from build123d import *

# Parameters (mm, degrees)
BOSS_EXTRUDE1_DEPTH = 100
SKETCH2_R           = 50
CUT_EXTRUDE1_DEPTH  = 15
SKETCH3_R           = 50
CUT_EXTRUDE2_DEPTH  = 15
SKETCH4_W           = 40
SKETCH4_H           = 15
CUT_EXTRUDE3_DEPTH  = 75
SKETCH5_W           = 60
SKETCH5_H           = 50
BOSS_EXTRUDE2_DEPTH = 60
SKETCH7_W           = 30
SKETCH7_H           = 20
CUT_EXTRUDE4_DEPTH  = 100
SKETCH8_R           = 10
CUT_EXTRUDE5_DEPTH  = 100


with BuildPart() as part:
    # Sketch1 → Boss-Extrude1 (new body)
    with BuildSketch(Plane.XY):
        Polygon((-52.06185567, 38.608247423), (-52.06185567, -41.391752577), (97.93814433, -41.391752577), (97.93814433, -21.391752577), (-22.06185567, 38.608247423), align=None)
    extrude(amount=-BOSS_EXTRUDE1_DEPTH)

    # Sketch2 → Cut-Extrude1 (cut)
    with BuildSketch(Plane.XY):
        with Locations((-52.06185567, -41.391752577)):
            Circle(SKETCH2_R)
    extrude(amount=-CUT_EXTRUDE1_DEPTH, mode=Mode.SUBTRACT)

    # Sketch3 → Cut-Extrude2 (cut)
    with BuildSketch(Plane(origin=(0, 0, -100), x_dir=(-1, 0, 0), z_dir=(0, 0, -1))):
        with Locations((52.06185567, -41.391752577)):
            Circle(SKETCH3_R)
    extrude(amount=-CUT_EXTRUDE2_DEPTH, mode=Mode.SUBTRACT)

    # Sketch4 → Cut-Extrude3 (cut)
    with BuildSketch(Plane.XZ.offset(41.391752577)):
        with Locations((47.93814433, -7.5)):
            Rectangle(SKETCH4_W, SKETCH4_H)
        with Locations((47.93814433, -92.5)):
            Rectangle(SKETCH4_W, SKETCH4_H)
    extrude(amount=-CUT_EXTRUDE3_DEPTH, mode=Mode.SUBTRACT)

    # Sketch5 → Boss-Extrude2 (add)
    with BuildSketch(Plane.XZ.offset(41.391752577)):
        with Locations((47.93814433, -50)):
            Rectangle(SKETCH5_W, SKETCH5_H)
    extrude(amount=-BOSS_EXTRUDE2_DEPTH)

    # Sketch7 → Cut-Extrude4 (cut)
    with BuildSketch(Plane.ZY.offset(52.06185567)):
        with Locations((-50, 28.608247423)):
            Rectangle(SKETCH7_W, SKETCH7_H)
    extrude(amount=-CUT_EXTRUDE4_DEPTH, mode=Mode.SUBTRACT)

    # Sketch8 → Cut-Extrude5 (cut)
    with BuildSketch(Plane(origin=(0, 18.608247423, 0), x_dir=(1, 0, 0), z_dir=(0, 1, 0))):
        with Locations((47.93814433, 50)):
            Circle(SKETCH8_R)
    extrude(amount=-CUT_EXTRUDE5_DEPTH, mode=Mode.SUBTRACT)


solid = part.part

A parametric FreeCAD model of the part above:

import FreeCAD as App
import Part
import Sketcher
from FreeCAD import Vector
Q = App.Units.Quantity


def add_polygon(sketch, points):
    """Adds a closed chain of lines whose ends are joined by coincident constraints."""
    first, n = sketch.GeometryCount, len(points)
    for a, b in zip(points, points[1:] + points[:1]):
        sketch.addGeometry(Part.LineSegment(App.Vector(*a, 0), App.Vector(*b, 0)), False)
    for i in range(n):
        sketch.addConstraint(Sketcher.Constraint("Coincident", first + i, 2, first + (i + 1) % n, 1))

doc = App.newDocument("Part")
params = doc.addObject("Spreadsheet::Sheet", "Params")
for row, (alias, value) in enumerate([
    ("sketch1_width", "150 mm"),
    ("sketch1_width2", "30 mm"),
    ("sketch1_height", "80 mm"),
    ("sketch1_height2", "20 mm"),
    ("pad1_length", "100 mm"),
    ("sketch2_diameter", "100 mm"),
    ("pocket1_length", "15 mm"),
    ("sketch3_diameter", "100 mm"),
    ("pocket2_length", "15 mm"),
    ("sketch4_width", "40 mm"),
    ("sketch4_height", "15 mm"),
    ("pocket3_length", "75 mm"),
    ("sketch5_width", "60 mm"),
    ("sketch5_height", "50 mm"),
    ("pad2_length", "60 mm"),
    ("sketch6_width", "20 mm"),
    ("sketch6_height", "30 mm"),
    ("pocket4_length", "100 mm"),
    ("sketch7_diameter", "20 mm"),
    ("pocket5_length", "100 mm"),
], start=1):
    params.set(f"A{row}", alias)
    params.set(f"B{row}", "=" + value)
    params.setAlias(f"B{row}", alias)

body = doc.addObject("PartDesign::Body", "Body")

sketch1 = body.newObject("Sketcher::SketchObject", "Sketch")
sketch1.AttachmentSupport = (doc.getObject("XY_Plane"), [""])
sketch1.MapMode = "FlatFace"
add_polygon(sketch1, [(-52, 39), (-52, -41), (98, -41), (98, -21), (-22, 39)])
sketch1.addConstraint([
    Sketcher.Constraint("Vertical", 0),
    Sketcher.Constraint("Horizontal", 1),
    Sketcher.Constraint("Vertical", 2),
    Sketcher.Constraint("Horizontal", 4),
    Sketcher.Constraint("DistanceX", 1, 1, 1, 2, Q("150 mm")),
    Sketcher.Constraint("DistanceX", 4, 2, 4, 1, Q("30 mm")),
    Sketcher.Constraint("DistanceY", 0, 2, 0, 1, Q("80 mm")),
    Sketcher.Constraint("DistanceY", 2, 1, 2, 2, Q("20 mm")),
    Sketcher.Constraint("DistanceX", 0, 2, -1, 1, Q("52.061856 mm")),
    Sketcher.Constraint("DistanceY", 0, 2, -1, 1, Q("41.391753 mm")),
])
sketch1.setExpression("Constraints[9]", "Params.sketch1_width")
sketch1.setExpression("Constraints[10]", "Params.sketch1_width2")
sketch1.setExpression("Constraints[11]", "Params.sketch1_height")
sketch1.setExpression("Constraints[12]", "Params.sketch1_height2")
pad1 = body.newObject("PartDesign::Pad", "Pad")
pad1.Profile = sketch1
pad1.setExpression("Length", "Params.pad1_length")
pad1.Reversed = True

sketch2 = body.newObject("Sketcher::SketchObject", "Sketch001")
sketch2.AttachmentSupport = (doc.getObject("XY_Plane"), [""])
sketch2.MapMode = "FlatFace"
sketch2.addGeometry(Part.Circle(Vector(-52, -41, 0), Vector(0, 0, 1), 50), False)
sketch2.addConstraint([
    Sketcher.Constraint("Diameter", 0, Q("100 mm")),
    Sketcher.Constraint("DistanceX", 0, 3, -1, 1, Q("52.061856 mm")),
    Sketcher.Constraint("DistanceY", 0, 3, -1, 1, Q("41.391753 mm")),
])
sketch2.setExpression("Constraints[0]", "Params.sketch2_diameter")
pocket1 = body.newObject("PartDesign::Pocket", "Pocket")
pocket1.Profile = sketch2
pocket1.setExpression("Length", "Params.pocket1_length")

sketch3 = body.newObject("Sketcher::SketchObject", "Sketch002")
sketch3.AttachmentSupport = (doc.getObject("XY_Plane"), [""])
sketch3.MapMode = "FlatFace"
sketch3.AttachmentOffset = App.Placement(Vector(0, 0, -100), App.Rotation())
sketch3.addGeometry(Part.Circle(Vector(-52, -41, 0), Vector(0, 0, 1), 50), False)
sketch3.addConstraint([
    Sketcher.Constraint("Diameter", 0, Q("100 mm")),
    Sketcher.Constraint("DistanceX", 0, 3, -1, 1, Q("52.061856 mm")),
    Sketcher.Constraint("DistanceY", 0, 3, -1, 1, Q("41.391753 mm")),
])
sketch3.setExpression("Constraints[0]", "Params.sketch3_diameter")
pocket2 = body.newObject("PartDesign::Pocket", "Pocket001")
pocket2.Profile = sketch3
pocket2.setExpression("Length", "Params.pocket2_length")
pocket2.Reversed = True

sketch4 = body.newObject("Sketcher::SketchObject", "Sketch003")
sketch4.AttachmentSupport = (doc.getObject("XZ_Plane"), [""])
sketch4.MapMode = "FlatFace"
sketch4.AttachmentOffset = App.Placement(Vector(0, 0, 41.391753), App.Rotation())
add_polygon(sketch4, [(28, 0), (28, -15), (68, -15), (68, 0)])
add_polygon(sketch4, [(28, -85), (28, -100), (68, -100), (68, -85)])
sketch4.addConstraint([
    Sketcher.Constraint("Vertical", 0),
    Sketcher.Constraint("Horizontal", 1),
    Sketcher.Constraint("Vertical", 2),
    Sketcher.Constraint("Horizontal", 3),
    Sketcher.Constraint("Vertical", 4),
    Sketcher.Constraint("Horizontal", 5),
    Sketcher.Constraint("Vertical", 6),
    Sketcher.Constraint("Horizontal", 7),
    Sketcher.Constraint("PointOnObject", 2, 2, -1),
    Sketcher.Constraint("Vertical", 3, 2, 4, 2),
    Sketcher.Constraint("Vertical", 2, 2, 5, 2),
    Sketcher.Constraint("Equal", 2, 4),
    Sketcher.Constraint("DistanceX", 1, 1, 1, 2, Q("40 mm")),
    Sketcher.Constraint("DistanceY", 0, 2, 0, 1, Q("15 mm")),
    Sketcher.Constraint("DistanceY", 4, 2, -1, 1, Q("100 mm")),
    Sketcher.Constraint("DistanceX", -1, 1, 0, 2, Q("27.938144 mm")),
])
sketch4.setExpression("Constraints[20]", "Params.sketch4_width")
sketch4.setExpression("Constraints[21]", "Params.sketch4_height")
pocket3 = body.newObject("PartDesign::Pocket", "Pocket002")
pocket3.Profile = sketch4
pocket3.setExpression("Length", "Params.pocket3_length")

sketch5 = body.newObject("Sketcher::SketchObject", "Sketch004")
sketch5.AttachmentSupport = (doc.getObject("XZ_Plane"), [""])
sketch5.MapMode = "FlatFace"
sketch5.AttachmentOffset = App.Placement(Vector(0, 0, 41.391753), App.Rotation())
add_polygon(sketch5, [(18, -25), (18, -75), (78, -75), (78, -25)])
sketch5.addConstraint([
    Sketcher.Constraint("Vertical", 0),
    Sketcher.Constraint("Horizontal", 1),
    Sketcher.Constraint("Vertical", 2),
    Sketcher.Constraint("Horizontal", 3),
    Sketcher.Constraint("DistanceX", 1, 1, 1, 2, Q("60 mm")),
    Sketcher.Constraint("DistanceY", 0, 2, 0, 1, Q("50 mm")),
    Sketcher.Constraint("DistanceY", 0, 2, -1, 1, Q("75 mm")),
    Sketcher.Constraint("DistanceX", -1, 1, 0, 2, Q("17.938144 mm")),
])
sketch5.setExpression("Constraints[8]", "Params.sketch5_width")
sketch5.setExpression("Constraints[9]", "Params.sketch5_height")
pad2 = body.newObject("PartDesign::Pad", "Pad001")
pad2.Profile = sketch5
pad2.setExpression("Length", "Params.pad2_length")
pad2.Reversed = True

sketch6 = body.newObject("Sketcher::SketchObject", "Sketch005")
sketch6.AttachmentSupport = (doc.getObject("YZ_Plane"), [""])
sketch6.MapMode = "FlatFace"
sketch6.AttachmentOffset = App.Placement(Vector(0, 0, -52.061856), App.Rotation())
add_polygon(sketch6, [(39, -65), (19, -65), (19, -35), (39, -35)])
sketch6.addConstraint([
    Sketcher.Constraint("Horizontal", 0),
    Sketcher.Constraint("Vertical", 1),
    Sketcher.Constraint("Horizontal", 2),
    Sketcher.Constraint("Vertical", 3),
    Sketcher.Constraint("DistanceX", 0, 2, 0, 1, Q("20 mm")),
    Sketcher.Constraint("DistanceY", 1, 1, 1, 2, Q("30 mm")),
    Sketcher.Constraint("DistanceY", 0, 2, -1, 1, Q("65 mm")),
    Sketcher.Constraint("DistanceX", -1, 1, 0, 2, Q("18.608247 mm")),
])
sketch6.setExpression("Constraints[8]", "Params.sketch6_width")
sketch6.setExpression("Constraints[9]", "Params.sketch6_height")
pocket4 = body.newObject("PartDesign::Pocket", "Pocket003")
pocket4.Profile = sketch6
pocket4.setExpression("Length", "Params.pocket4_length")
pocket4.Reversed = True

sketch7 = body.newObject("Sketcher::SketchObject", "Sketch006")
sketch7.AttachmentSupport = (doc.getObject("XZ_Plane"), [""])
sketch7.MapMode = "FlatFace"
sketch7.AttachmentOffset = App.Placement(Vector(0, 0, -18.608247), App.Rotation())
sketch7.addGeometry(Part.Circle(Vector(48, -50, 0), Vector(0, 0, 1), 10), False)
sketch7.addConstraint([
    Sketcher.Constraint("Diameter", 0, Q("20 mm")),
    Sketcher.Constraint("DistanceY", 0, 3, -1, 1, Q("50 mm")),
    Sketcher.Constraint("DistanceX", -1, 1, 0, 3, Q("47.938144 mm")),
])
sketch7.setExpression("Constraints[0]", "Params.sketch7_diameter")
pocket5 = body.newObject("PartDesign::Pocket", "Pocket004")
pocket5.Profile = sketch7
pocket5.setExpression("Length", "Params.pocket5_length")
pocket5.Reversed = True

doc.recompute()
